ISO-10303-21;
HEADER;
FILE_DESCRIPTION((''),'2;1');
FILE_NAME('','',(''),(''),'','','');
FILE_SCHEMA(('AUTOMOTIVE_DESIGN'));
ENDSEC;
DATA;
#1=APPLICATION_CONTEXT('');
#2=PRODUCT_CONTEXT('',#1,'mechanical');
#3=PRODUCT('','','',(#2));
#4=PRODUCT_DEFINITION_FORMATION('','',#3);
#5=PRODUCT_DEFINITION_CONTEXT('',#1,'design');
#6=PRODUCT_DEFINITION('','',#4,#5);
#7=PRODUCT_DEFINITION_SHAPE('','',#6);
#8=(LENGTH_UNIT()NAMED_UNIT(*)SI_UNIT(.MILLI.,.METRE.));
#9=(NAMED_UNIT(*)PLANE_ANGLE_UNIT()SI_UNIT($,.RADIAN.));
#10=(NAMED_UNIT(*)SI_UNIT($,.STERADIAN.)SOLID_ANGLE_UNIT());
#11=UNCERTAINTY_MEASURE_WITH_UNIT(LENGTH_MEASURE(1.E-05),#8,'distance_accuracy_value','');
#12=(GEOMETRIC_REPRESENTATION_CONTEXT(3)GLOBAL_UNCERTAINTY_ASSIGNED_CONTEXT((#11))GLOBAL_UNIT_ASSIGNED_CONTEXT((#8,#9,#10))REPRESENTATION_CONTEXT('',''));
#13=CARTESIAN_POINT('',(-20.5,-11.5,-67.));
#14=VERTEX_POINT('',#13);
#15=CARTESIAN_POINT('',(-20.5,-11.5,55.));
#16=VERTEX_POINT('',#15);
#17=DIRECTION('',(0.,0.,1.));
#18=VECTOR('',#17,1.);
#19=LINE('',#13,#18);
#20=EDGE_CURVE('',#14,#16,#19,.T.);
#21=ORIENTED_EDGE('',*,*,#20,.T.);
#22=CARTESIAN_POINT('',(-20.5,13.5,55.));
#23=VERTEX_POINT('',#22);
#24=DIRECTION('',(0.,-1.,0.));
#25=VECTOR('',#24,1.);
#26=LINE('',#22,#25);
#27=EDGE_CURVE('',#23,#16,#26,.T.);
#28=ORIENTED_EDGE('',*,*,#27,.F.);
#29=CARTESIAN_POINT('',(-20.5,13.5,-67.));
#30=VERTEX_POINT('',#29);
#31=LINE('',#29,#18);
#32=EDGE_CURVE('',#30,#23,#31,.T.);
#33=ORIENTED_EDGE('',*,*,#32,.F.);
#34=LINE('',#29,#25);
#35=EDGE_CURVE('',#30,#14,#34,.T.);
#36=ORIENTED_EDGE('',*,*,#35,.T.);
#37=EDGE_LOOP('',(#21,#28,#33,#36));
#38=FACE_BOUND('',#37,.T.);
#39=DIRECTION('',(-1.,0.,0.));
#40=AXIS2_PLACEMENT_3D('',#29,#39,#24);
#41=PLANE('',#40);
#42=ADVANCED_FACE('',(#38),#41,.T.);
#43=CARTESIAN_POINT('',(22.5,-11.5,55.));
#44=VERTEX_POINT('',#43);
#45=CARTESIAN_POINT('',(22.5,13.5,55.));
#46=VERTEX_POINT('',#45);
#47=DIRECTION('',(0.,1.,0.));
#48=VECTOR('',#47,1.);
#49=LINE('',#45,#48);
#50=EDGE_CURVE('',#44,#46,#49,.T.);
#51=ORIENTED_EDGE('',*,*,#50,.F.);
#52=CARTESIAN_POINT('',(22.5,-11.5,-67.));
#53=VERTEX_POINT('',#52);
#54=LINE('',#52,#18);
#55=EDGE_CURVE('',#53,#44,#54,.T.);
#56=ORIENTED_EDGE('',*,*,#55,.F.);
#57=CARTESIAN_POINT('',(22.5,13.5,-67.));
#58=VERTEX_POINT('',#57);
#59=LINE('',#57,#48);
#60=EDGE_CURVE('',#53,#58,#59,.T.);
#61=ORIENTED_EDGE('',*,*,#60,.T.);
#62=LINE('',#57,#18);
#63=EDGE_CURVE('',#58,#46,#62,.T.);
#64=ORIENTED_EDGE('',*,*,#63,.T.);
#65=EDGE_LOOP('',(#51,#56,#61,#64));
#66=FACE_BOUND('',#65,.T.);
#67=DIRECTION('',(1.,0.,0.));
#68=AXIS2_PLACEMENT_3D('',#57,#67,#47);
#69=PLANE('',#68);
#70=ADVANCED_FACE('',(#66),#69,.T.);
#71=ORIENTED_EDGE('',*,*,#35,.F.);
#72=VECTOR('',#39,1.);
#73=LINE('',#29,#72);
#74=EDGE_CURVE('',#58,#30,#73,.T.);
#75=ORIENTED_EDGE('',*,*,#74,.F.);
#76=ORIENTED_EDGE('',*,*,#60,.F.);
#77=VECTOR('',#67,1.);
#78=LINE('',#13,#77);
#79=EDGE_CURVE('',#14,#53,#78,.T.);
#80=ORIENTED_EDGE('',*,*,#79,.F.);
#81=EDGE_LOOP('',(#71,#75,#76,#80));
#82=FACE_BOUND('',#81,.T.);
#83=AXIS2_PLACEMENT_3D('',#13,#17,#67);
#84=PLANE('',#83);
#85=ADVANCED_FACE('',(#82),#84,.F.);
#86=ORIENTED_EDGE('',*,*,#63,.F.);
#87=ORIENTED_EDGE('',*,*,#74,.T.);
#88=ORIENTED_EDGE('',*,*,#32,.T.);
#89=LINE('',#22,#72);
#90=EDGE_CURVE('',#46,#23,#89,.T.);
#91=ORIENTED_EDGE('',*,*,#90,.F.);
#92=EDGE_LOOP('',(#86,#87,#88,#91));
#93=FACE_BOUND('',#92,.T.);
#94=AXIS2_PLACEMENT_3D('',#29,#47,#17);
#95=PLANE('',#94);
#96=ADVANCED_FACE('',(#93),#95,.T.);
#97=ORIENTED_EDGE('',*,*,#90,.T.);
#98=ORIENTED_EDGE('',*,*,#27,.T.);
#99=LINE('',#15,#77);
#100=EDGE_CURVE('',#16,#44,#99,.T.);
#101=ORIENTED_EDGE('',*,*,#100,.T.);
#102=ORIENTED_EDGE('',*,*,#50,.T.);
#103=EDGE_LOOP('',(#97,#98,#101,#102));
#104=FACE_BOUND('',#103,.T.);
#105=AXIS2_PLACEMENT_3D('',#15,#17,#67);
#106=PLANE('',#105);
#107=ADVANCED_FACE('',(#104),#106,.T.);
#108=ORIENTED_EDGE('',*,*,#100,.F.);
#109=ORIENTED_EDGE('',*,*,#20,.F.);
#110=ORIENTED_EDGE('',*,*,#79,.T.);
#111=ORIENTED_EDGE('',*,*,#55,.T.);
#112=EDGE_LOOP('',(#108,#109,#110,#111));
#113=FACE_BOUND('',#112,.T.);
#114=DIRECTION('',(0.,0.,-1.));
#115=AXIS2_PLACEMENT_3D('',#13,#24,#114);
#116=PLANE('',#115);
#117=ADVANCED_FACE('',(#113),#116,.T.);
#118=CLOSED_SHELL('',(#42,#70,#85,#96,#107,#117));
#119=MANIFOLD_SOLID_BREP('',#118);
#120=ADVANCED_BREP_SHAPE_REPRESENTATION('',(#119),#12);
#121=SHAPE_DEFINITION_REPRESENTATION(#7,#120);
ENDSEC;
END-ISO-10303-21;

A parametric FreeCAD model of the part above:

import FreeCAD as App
import Part
import Sketcher
from FreeCAD import Vector
Q = App.Units.Quantity


def add_polygon(sketch, points):
    """Adds a closed chain of lines whose ends are joined by coincident constraints."""
    first, n = sketch.GeometryCount, len(points)
    for a, b in zip(points, points[1:] + points[:1]):
        sketch.addGeometry(Part.LineSegment(App.Vector(*a, 0), App.Vector(*b, 0)), False)
    for i in range(n):
        sketch.addConstraint(Sketcher.Constraint("Coincident", first + i, 2, first + (i + 1) % n, 1))

doc = App.newDocument("Part")
params = doc.addObject("Spreadsheet::Sheet", "Params")
for row, (alias, value) in enumerate([
    ("sketch1_width", "43 mm"),
    ("sketch1_height", "25 mm"),
    ("pad1_length", "55 mm"),
    ("pad1_length2", "67 mm"),
], start=1):
    params.set(f"A{row}", alias)
    params.set(f"B{row}", "=" + value)
    params.setAlias(f"B{row}", alias)

body = doc.addObject("PartDesign::Body", "Body")

# Sketch on XY plane
sketch1 = doc.addObject("Sketcher::SketchObject", "Sketch")
body.addObject(sketch1)
sketch1.AttachmentSupport = (doc.XY_Plane, [""])
sketch1.MapMode = "FlatFace"
add_polygon(sketch1, [(-20.5, 13.5), (-20.5, -11.5), (22.5, -11.5), (22.5, 13.5)])  # lines 0-3
sketch1.addConstraint([
    Sketcher.Constraint("Vertical", 0),
    Sketcher.Constraint("Horizontal", 1),
    Sketcher.Constraint("Vertical", 2),
    Sketcher.Constraint("Horizontal", 3),
    Sketcher.Constraint("DistanceX", 1, 1, 1, 2, Q("43 mm")),
    Sketcher.Constraint("DistanceY", 0, 2, 0, 1, Q("25 mm")),
    Sketcher.Constraint("DistanceX", 0, 2, -1, 1, Q("20.5 mm")),
    Sketcher.Constraint("DistanceY", 0, 2, -1, 1, Q("11.5 mm")),
])
sketch1.setExpression("Constraints[8]", "Params.sketch1_width")
sketch1.setExpression("Constraints[9]", "Params.sketch1_height")
pad1 = doc.addObject("PartDesign::Pad", "Pad")
body.addObject(pad1)
pad1.Profile = sketch1
pad1.Type = "TwoLengths"
pad1.setExpression("Length", "Params.pad1_length")
pad1.setExpression("Length2", "Params.pad1_length2")

doc.recompute()
